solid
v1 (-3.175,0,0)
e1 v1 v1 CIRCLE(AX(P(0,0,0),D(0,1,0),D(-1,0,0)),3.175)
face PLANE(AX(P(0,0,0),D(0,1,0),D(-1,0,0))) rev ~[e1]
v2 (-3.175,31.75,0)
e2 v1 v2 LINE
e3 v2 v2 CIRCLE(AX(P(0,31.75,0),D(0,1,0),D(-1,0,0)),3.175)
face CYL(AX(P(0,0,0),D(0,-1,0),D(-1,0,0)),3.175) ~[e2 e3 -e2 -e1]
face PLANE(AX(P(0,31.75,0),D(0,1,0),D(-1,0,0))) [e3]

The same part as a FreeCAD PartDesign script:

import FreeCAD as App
import Part
import Sketcher

V = App.Vector
Q = App.Units.Quantity

doc = App.newDocument("Part")
body = doc.addObject("PartDesign::Body", "Body")

# Sketch on XZ plane
sketch1 = body.newObject("Sketcher::SketchObject", "Sketch")
sketch1.AttachmentSupport = (doc.getObject("XZ_Plane"), [""])
sketch1.MapMode = "FlatFace"
sketch1.addGeometry(Part.Circle(V(0, 0, 0), V(0, 0, 1), 3.175), False)
sketch1.addConstraint(Sketcher.Constraint("Coincident", 0, 3, -1, 1))
sketch1.addConstraint(Sketcher.Constraint("Diameter", 0, Q("0.25 in")))
pad1 = body.newObject("PartDesign::Pad", "Pad")
pad1.Profile = sketch1
pad1.Length = Q("1.25 in")
pad1.Reversed = True

doc.recompute()
